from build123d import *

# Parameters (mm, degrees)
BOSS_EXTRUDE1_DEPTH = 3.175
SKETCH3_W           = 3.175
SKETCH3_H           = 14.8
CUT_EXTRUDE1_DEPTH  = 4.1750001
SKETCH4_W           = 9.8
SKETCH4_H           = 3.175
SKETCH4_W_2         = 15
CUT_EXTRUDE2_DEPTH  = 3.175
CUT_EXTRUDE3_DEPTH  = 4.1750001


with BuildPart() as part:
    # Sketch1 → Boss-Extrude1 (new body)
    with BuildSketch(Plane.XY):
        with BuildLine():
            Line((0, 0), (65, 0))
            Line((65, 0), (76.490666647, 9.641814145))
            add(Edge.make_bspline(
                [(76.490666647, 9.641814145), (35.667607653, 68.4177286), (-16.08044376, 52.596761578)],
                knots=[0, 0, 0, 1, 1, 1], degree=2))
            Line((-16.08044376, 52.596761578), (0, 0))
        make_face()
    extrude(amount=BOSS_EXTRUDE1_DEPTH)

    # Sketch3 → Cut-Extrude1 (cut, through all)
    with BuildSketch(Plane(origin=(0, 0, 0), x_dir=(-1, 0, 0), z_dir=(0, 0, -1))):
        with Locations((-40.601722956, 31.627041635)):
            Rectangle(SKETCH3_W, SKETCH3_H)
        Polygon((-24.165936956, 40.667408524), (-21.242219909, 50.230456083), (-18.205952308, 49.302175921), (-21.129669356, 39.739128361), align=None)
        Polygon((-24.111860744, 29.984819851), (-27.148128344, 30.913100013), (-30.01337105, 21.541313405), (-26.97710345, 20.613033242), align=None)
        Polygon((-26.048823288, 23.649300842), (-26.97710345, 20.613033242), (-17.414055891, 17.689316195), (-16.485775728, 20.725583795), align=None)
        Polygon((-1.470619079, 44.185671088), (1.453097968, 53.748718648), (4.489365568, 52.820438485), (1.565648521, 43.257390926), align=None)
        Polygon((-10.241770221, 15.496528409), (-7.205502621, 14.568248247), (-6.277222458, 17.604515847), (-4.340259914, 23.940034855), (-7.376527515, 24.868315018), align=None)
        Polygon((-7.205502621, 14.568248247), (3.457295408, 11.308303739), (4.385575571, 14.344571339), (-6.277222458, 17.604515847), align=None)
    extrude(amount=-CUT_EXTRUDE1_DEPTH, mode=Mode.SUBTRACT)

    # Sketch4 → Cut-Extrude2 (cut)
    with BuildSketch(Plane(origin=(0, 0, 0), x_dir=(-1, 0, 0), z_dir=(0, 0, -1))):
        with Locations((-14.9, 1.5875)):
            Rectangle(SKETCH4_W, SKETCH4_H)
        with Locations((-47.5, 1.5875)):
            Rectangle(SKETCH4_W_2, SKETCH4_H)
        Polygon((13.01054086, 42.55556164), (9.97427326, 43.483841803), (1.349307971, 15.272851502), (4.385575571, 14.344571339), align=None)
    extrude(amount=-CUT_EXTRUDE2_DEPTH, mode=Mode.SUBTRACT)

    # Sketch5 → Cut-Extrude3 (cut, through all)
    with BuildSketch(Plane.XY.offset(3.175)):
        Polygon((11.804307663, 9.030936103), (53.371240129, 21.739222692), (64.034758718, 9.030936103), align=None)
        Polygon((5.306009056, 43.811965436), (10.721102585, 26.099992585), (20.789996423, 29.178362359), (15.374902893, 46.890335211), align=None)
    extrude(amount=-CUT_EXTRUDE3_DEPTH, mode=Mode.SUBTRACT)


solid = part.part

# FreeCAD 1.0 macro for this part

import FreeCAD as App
import Part
import Sketcher
from FreeCAD import Vector
Q = App.Units.Quantity

doc = App.newDocument("Part")
params = doc.addObject("Spreadsheet::Sheet", "Params")
for row, (alias, value) in enumerate([
    ("sketch1_width", "65 mm"),
    ("pad1_length", "3.175 mm"),
    ("sketch2_length", "10 mm"),
    ("sketch2_height", "14.8 mm"),
    ("sketch2_length2", "9.8 mm"),
    ("sketch2_length3", "11.15 mm"),
    ("sketch3_width", "15 mm"),
    ("sketch3_width2", "9.8 mm"),
    ("sketch3_length", "29.5 mm"),
    ("pocket2_length", "3.175 mm"),
], start=1):
    params.set(f"A{row}", alias)
    params.set(f"B{row}", "=" + value)
    params.setAlias(f"B{row}", alias)

body = doc.addObject("PartDesign::Body", "Body")

# Sketch on XY plane
sketch1 = doc.addObject("Sketcher::SketchObject", "Sketch")
body.addObject(sketch1)
sketch1.AttachmentSupport = (doc.XY_Plane, [""])
sketch1.MapMode = "FlatFace"
sketch1.addGeometry([
    Part.LineSegment(Vector(0, 0, 0), Vector(65, 0, 0)),
    Part.LineSegment(Vector(65, 0, 0), Vector(76.490667, 9.641814, 0)),
    Part.BSplineCurve([Vector(76.490667, 9.641814, 0), Vector(35.667608, 68.417729, 0), Vector(-16.080444, 52.596762, 0)], [3, 3], [0, 1], False, 2, [1, 1, 1], False),
    Part.LineSegment(Vector(-16.080444, 52.596762, 0), Vector(0, 0, 0)),
], False)
sketch1.addConstraint([
    Sketcher.Constraint("Block", 2),
    Sketcher.Constraint("Coincident", 0, 2, 1, 1),
    Sketcher.Constraint("Coincident", 1, 2, 2, 1),
    Sketcher.Constraint("Coincident", 2, 2, 3, 1),
    Sketcher.Constraint("Coincident", 3, 2, 0, 1),
    Sketcher.Constraint("Horizontal", 0),
    Sketcher.Constraint("Coincident", 3, 2, -1, 1),
    Sketcher.Constraint("DistanceX", 0, 1, 0, 2, Q("65 mm")),
])
sketch1.setExpression("Constraints[7]", "Params.sketch1_width")
pad1 = doc.addObject("PartDesign::Pad", "Pad")
body.addObject(pad1)
pad1.Profile = sketch1
pad1.setExpression("Length", "Params.pad1_length")

# Sketch on XY plane
sketch2 = doc.addObject("Sketcher::SketchObject", "Sketch001")
body.addObject(sketch2)
sketch2.AttachmentSupport = (doc.XY_Plane, [""])
sketch2.MapMode = "FlatFace"
sketch2.addGeometry([
    Part.LineSegment(Vector(42.2, 39, 0), Vector(42.2, 24.2, 0)),  # 0
    Part.LineSegment(Vector(42.2, 24.2, 0), Vector(39, 24.2, 0)),  # 1
    Part.LineSegment(Vector(39, 24.2, 0), Vector(39, 39, 0)),  # 2
    Part.LineSegment(Vector(39, 39, 0), Vector(42.2, 39, 0)),  # 3
    Part.LineSegment(Vector(21.2, 50.2, 0), Vector(24.2, 40.7, 0)),  # 4
    Part.LineSegment(Vector(24.2, 40.7, 0), Vector(21.1, 39.7, 0)),  # 5
    Part.LineSegment(Vector(21.1, 39.7, 0), Vector(18.2, 49.3, 0)),  # 6
    Part.LineSegment(Vector(18.2, 49.3, 0), Vector(21.2, 50.2, 0)),  # 7
    Part.LineSegment(Vector(24.1, 30, 0), Vector(27.1, 30.9, 0)),  # 8
    Part.LineSegment(Vector(27.1, 30.9, 0), Vector(30, 21.5, 0)),  # 9
    Part.LineSegment(Vector(30, 21.5, 0), Vector(27, 20.6, 0)),  # 10
    Part.LineSegment(Vector(27, 20.6, 0), Vector(17.4, 17.7, 0)),  # 11
    Part.LineSegment(Vector(17.4, 17.7, 0), Vector(16.5, 20.7, 0)),  # 12
    Part.LineSegment(Vector(16.5, 20.7, 0), Vector(26, 23.6, 0)),  # 13
    Part.LineSegment(Vector(26, 23.6, 0), Vector(24.1, 30, 0)),  # 14
    Part.LineSegment(Vector(-1.5, 53.7, 0), Vector(1.5, 44.2, 0)),  # 15
    Part.LineSegment(Vector(1.5, 44.2, 0), Vector(-1.6, 43.3, 0)),  # 16
    Part.LineSegment(Vector(-1.6, 43.3, 0), Vector(-4.5, 52.8, 0)),  # 17
    Part.LineSegment(Vector(-4.5, 52.8, 0), Vector(-1.5, 53.7, 0)),  # 18
    Part.LineSegment(Vector(10.2, 15.5, 0), Vector(7.2, 14.6, 0)),  # 19
    Part.LineSegment(Vector(7.2, 14.6, 0), Vector(-3.5, 11.3, 0)),  # 20
    Part.LineSegment(Vector(-3.5, 11.3, 0), Vector(-4.4, 14.3, 0)),  # 21
    Part.LineSegment(Vector(-4.4, 14.3, 0), Vector(6.3, 17.6, 0)),  # 22
    Part.LineSegment(Vector(6.3, 17.6, 0), Vector(4.3, 23.9, 0)),  # 23
    Part.LineSegment(Vector(4.3, 23.9, 0), Vector(7.4, 24.9, 0)),  # 24
    Part.LineSegment(Vector(7.4, 24.9, 0), Vector(10.2, 15.5, 0)),  # 25
], False)
sketch2.addConstraint([
    Sketcher.Constraint("Coincident", 0, 2, 1, 1),
    Sketcher.Constraint("Coincident", 1, 2, 2, 1),
    Sketcher.Constraint("Coincident", 2, 2, 3, 1),
    Sketcher.Constraint("Coincident", 3, 2, 0, 1),
    Sketcher.Constraint("Coincident", 4, 2, 5, 1),
    Sketcher.Constraint("Coincident", 5, 2, 6, 1),
    Sketcher.Constraint("Coincident", 6, 2, 7, 1),
    Sketcher.Constraint("Coincident", 7, 2, 4, 1),
    Sketcher.Constraint("Coincident", 8, 2, 9, 1),
    Sketcher.Constraint("Coincident", 9, 2, 10, 1),
    Sketcher.Constraint("Coincident", 10, 2, 11, 1),
    Sketcher.Constraint("Coincident", 11, 2, 12, 1),
    Sketcher.Constraint("Coincident", 12, 2, 13, 1),
    Sketcher.Constraint("Coincident", 13, 2, 14, 1),
    Sketcher.Constraint("Coincident", 14, 2, 8, 1),
    Sketcher.Constraint("Coincident", 15, 2, 16, 1),
    Sketcher.Constraint("Coincident", 16, 2, 17, 1),
    Sketcher.Constraint("Coincident", 17, 2, 18, 1),
    Sketcher.Constraint("Coincident", 18, 2, 15, 1),
    Sketcher.Constraint("Coincident", 19, 2, 20, 1),
    Sketcher.Constraint("Coincident", 20, 2, 21, 1),
    Sketcher.Constraint("Coincident", 21, 2, 22, 1),
    Sketcher.Constraint("Coincident", 22, 2, 23, 1),
    Sketcher.Constraint("Coincident", 23, 2, 24, 1),
    Sketcher.Constraint("Coincident", 24, 2, 25, 1),
    Sketcher.Constraint("Coincident", 25, 2, 19, 1),
    Sketcher.Constraint("Vertical", 0),
    Sketcher.Constraint("Horizontal", 1),
    Sketcher.Constraint("Vertical", 2),
    Sketcher.Constraint("Horizontal", 3),
    Sketcher.Constraint("Perpendicular", 4, 5),
    Sketcher.Constraint("Perpendicular", 5, 6),
    Sketcher.Constraint("Perpendicular", 6, 7),
    Sketcher.Constraint("Parallel", 7, 8),
    Sketcher.Constraint("Perpendicular", 8, 9),
    Sketcher.Constraint("Perpendicular", 9, 10),
    Sketcher.Constraint("Parallel", 10, 11),
    Sketcher.Constraint("Perpendicular", 11, 12),
    Sketcher.Constraint("Perpendicular", 12, 13),
    Sketcher.Constraint("Perpendicular", 13, 14),
    Sketcher.Constraint("Parallel", 14, 15),
    Sketcher.Constraint("Perpendicular", 15, 16),
    Sketcher.Constraint("Perpendicular", 16, 17),
    Sketcher.Constraint("Perpendicular", 17, 18),
    Sketcher.Constraint("Parallel", 18, 19),
    Sketcher.Constraint("Parallel", 19, 20),
    Sketcher.Constraint("Perpendicular", 20, 21),
    Sketcher.Constraint("Perpendicular", 21, 22),
    Sketcher.Constraint("Perpendicular", 22, 23),
    Sketcher.Constraint("Perpendicular", 23, 24),
    Sketcher.Constraint("Perpendicular", 24, 25),
    Sketcher.Constraint("Equal", 7, 8),
    Sketcher.Constraint("Equal", 8, 10),
    Sketcher.Constraint("Equal", 6, 11),
    Sketcher.Constraint("Equal", 10, 12),
    Sketcher.Constraint("Equal", 13, 15),
    Sketcher.Constraint("Equal", 12, 16),
    Sketcher.Constraint("Equal", 18, 19),
    Sketcher.Constraint("Equal", 19, 21),
    Sketcher.Constraint("Equal", 20, 22),
    Sketcher.Constraint("Equal", 14, 23),
    Sketcher.Constraint("Angle", 4, Q("-73 deg")),
    Sketcher.Constraint("Distance", 4, Q("10 mm")),
    Sketcher.Constraint("DistanceY", 0, 2, 0, 1, Q("14.8 mm")),
    Sketcher.Constraint("Distance", 9, Q("9.8 mm")),
    Sketcher.Constraint("Distance", 20, Q("11.15 mm")),
    Sketcher.Constraint("DistanceX", 1, 2, 1, 1, Q("3.175 mm")),
    Sketcher.Constraint("Distance", 5, Q("3.175 mm")),
    Sketcher.Constraint("DistanceY", 11, 2, 24, 2, Q("7.178999 mm")),
    Sketcher.Constraint("DistanceY", -1, 1, 8, 2, Q("30.9131 mm")),
    Sketcher.Constraint("DistanceX", 15, 2, 7, 2, Q("19.771601 mm")),
    Sketcher.Constraint("DistanceX", 19, 2, 10, 2, Q("19.771601 mm")),
    Sketcher.Constraint("DistanceY", -1, 1, 0, 2, Q("24.227042 mm")),
    Sketcher.Constraint("DistanceY", -1, 1, 4, 2, Q("40.667409 mm")),
    Sketcher.Constraint("DistanceX", -1, 1, 5, 2, Q("21.129669 mm")),
    Sketcher.Constraint("DistanceX", -1, 1, 8, 2, Q("27.148128 mm")),
    Sketcher.Constraint("DistanceY", -1, 1, 15, 2, Q("44.185671 mm")),
    Sketcher.Constraint("DistanceX", 6, 2, 2, 2, Q("20.808271 mm")),
])
sketch2.setExpression("Constraints[62]", "Params.sketch2_length")
sketch2.setExpression("Constraints[63]", "Params.sketch2_height")
sketch2.setExpression("Constraints[64]", "Params.sketch2_length2")
sketch2.setExpression("Constraints[65]", "Params.sketch2_length3")
pocket1 = doc.addObject("PartDesign::Pocket", "Pocket")
body.addObject(pocket1)
pocket1.Profile = sketch2
pocket1.Type = "ThroughAll"
pocket1.Reversed = True

# Sketch on XY plane
sketch3 = doc.addObject("Sketcher::SketchObject", "Sketch002")
body.addObject(sketch3)
sketch3.AttachmentSupport = (doc.XY_Plane, [""])
sketch3.MapMode = "FlatFace"
sketch3.addGeometry([
    Part.LineSegment(Vector(19.8, 3.2, 0), Vector(19.8, 0, 0)),  # 0
    Part.LineSegment(Vector(19.8, 0, 0), Vector(10, 0, 0)),  # 1
    Part.LineSegment(Vector(10, 0, 0), Vector(10, 3.2, 0)),  # 2
    Part.LineSegment(Vector(10, 3.2, 0), Vector(19.8, 3.2, 0)),  # 3
    Part.LineSegment(Vector(55, 3.2, 0), Vector(55, 0, 0)),  # 4
    Part.LineSegment(Vector(55, 0, 0), Vector(40, 0, 0)),  # 5
    Part.LineSegment(Vector(40, 0, 0), Vector(40, 3.2, 0)),  # 6
    Part.LineSegment(Vector(40, 3.2, 0), Vector(55, 3.2, 0)),  # 7
    Part.LineSegment(Vector(-13, 42.6, 0), Vector(-10, 43.5, 0)),  # 8
    Part.LineSegment(Vector(-10, 43.5, 0), Vector(-1.3, 15.3, 0)),  # 9
    Part.LineSegment(Vector(-1.3, 15.3, 0), Vector(-4.4, 14.3, 0)),  # 10
    Part.LineSegment(Vector(-4.4, 14.3, 0), Vector(-13, 42.6, 0)),  # 11
], False)
sketch3.addConstraint([
    Sketcher.Constraint("Coincident", 0, 2, 1, 1),
    Sketcher.Constraint("Coincident", 1, 2, 2, 1),
    Sketcher.Constraint("Coincident", 2, 2, 3, 1),
    Sketcher.Constraint("Coincident", 3, 2, 0, 1),
    Sketcher.Constraint("Coincident", 4, 2, 5, 1),
    Sketcher.Constraint("Coincident", 5, 2, 6, 1),
    Sketcher.Constraint("Coincident", 6, 2, 7, 1),
    Sketcher.Constraint("Coincident", 7, 2, 4, 1),
    Sketcher.Constraint("Coincident", 8, 2, 9, 1),
    Sketcher.Constraint("Coincident", 9, 2, 10, 1),
    Sketcher.Constraint("Coincident", 10, 2, 11, 1),
    Sketcher.Constraint("Coincident", 11, 2, 8, 1),
    Sketcher.Constraint("Vertical", 0),
    Sketcher.Constraint("Horizontal", 1),
    Sketcher.Constraint("Vertical", 2),
    Sketcher.Constraint("Horizontal", 3),
    Sketcher.Constraint("Vertical", 4),
    Sketcher.Constraint("Horizontal", 5),
    Sketcher.Constraint("Vertical", 6),
    Sketcher.Constraint("Horizontal", 7),
    Sketcher.Constraint("PointOnObject", 0, 2, -1),
    Sketcher.Constraint("PointOnObject", 4, 2, -1),
    Sketcher.Constraint("Perpendicular", 8, 9),
    Sketcher.Constraint("Perpendicular", 9, 10),
    Sketcher.Constraint("Perpendicular", 10, 11),
    Sketcher.Constraint("Horizontal", 3, 2, 6, 2),
    Sketcher.Constraint("DistanceX", 5, 2, 5, 1, Q("15 mm")),
    Sketcher.Constraint("Angle", 8, Q("17 deg")),
    Sketcher.Constraint("DistanceX", 1, 2, 1, 1, Q("9.8 mm")),
    Sketcher.Constraint("DistanceX", -1, 1, 1, 2, Q("10 mm")),
    Sketcher.Constraint("DistanceX", -1, 1, 4, 2, Q("55 mm")),
    Sketcher.Constraint("Distance", 9, Q("29.5 mm")),
    Sketcher.Constraint("DistanceY", 0, 2, 0, 1, Q("3.175 mm")),
    Sketcher.Constraint("Distance", 8, Q("3.175 mm")),
    Sketcher.Constraint("DistanceY", -1, 1, 8, 2, Q("43.483842 mm")),
    Sketcher.Constraint("DistanceX", 11, 2, -1, 1, Q("13.010541 mm")),
])
sketch3.setExpression("Constraints[26]", "Params.sketch3_width")
sketch3.setExpression("Constraints[28]", "Params.sketch3_width2")
sketch3.setExpression("Constraints[31]", "Params.sketch3_length")
pocket2 = doc.addObject("PartDesign::Pocket", "Pocket001")
body.addObject(pocket2)
pocket2.Profile = sketch3
pocket2.setExpression("Length", "Params.pocket2_length")
pocket2.Reversed = True

# Sketch on XY plane
sketch4 = doc.addObject("Sketcher::SketchObject", "Sketch003")
body.addObject(sketch4)
sketch4.AttachmentSupport = (doc.XY_Plane, [""])
sketch4.MapMode = "FlatFace"
sketch4.AttachmentOffset = App.Placement(Vector(0, 0, 3.175), App.Rotation())
sketch4.addGeometry([
    Part.LineSegment(Vector(53, 22, 0), Vector(12, 9, 0)),  # 0
    Part.LineSegment(Vector(12, 9, 0), Vector(64, 9, 0)),  # 1
    Part.LineSegment(Vector(64, 9, 0), Vector(53, 22, 0)),  # 2
    Part.LineSegment(Vector(5, 44, 0), Vector(11, 26, 0)),  # 3
    Part.LineSegment(Vector(11, 26, 0), Vector(21, 29, 0)),  # 4
    Part.LineSegment(Vector(21, 29, 0), Vector(15, 47, 0)),  # 5
    Part.LineSegment(Vector(15, 47, 0), Vector(5, 44, 0)),  # 6
], False)
sketch4.addConstraint([
    Sketcher.Constraint("Coincident", 0, 2, 1, 1),
    Sketcher.Constraint("Coincident", 1, 2, 2, 1),
    Sketcher.Constraint("Coincident", 2, 2, 0, 1),
    Sketcher.Constraint("Coincident", 3, 2, 4, 1),
    Sketcher.Constraint("Coincident", 4, 2, 5, 1),
    Sketcher.Constraint("Coincident", 5, 2, 6, 1),
    Sketcher.Constraint("Coincident", 6, 2, 3, 1),
    Sketcher.Constraint("Horizontal", 1),
    Sketcher.Constraint("Perpendicular", 0, 3),
    Sketcher.Constraint("Perpendicular", 3, 4),
    Sketcher.Constraint("Perpendicular", 4, 5),
    Sketcher.Constraint("Perpendicular", 5, 6),
    Sketcher.Constraint("Angle", 0, Q("-163 deg")),
    Sketcher.Constraint("Angle", 2, Q("130 deg")),
    Sketcher.Constraint("Distance", 0, Q("43.466199 mm")),
    Sketcher.Constraint("DistanceX", 3, 2, 5, 2, Q("4.6538 mm")),
    Sketcher.Constraint("DistanceY", 0, 2, 5, 2, Q("37.859399 mm")),
    Sketcher.Constraint("DistanceX", 6, 2, 0, 2, Q("6.498299 mm")),
    Sketcher.Constraint("Distance", 4, Q("10.528959 mm")),
    Sketcher.Constraint("DistanceX", -1, 1, 1, 2, Q("64.034759 mm")),
    Sketcher.Constraint("DistanceY", -1, 1, 0, 2, Q("9.030936 mm")),
])
pocket3 = doc.addObject("PartDesign::Pocket", "Pocket002")
body.addObject(pocket3)
pocket3.Profile = sketch4
pocket3.Type = "ThroughAll"

doc.recompute()
